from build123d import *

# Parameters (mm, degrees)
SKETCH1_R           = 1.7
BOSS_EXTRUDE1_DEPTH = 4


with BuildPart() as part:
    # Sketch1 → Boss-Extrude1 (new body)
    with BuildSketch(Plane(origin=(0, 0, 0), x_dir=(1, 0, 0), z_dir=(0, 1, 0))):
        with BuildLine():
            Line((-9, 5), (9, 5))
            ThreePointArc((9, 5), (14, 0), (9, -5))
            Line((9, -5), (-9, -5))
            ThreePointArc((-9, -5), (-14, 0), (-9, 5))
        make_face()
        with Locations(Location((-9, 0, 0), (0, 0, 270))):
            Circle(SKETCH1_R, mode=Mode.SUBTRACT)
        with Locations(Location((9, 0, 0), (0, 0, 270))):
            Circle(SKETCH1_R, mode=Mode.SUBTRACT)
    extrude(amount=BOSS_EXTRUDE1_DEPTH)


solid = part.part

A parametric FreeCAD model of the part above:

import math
import FreeCAD as App
import Part
import Sketcher
from FreeCAD import Vector
Q = App.Units.Quantity

doc = App.newDocument("Part")
body = doc.addObject("PartDesign::Body", "Body")

# Sketch on XZ plane
sketch1 = body.newObject("Sketcher::SketchObject", "Sketch")
sketch1.AttachmentSupport = (doc.getObject("XZ_Plane"), [""])
sketch1.MapMode = "FlatFace"
sketch1.addGeometry([
    Part.LineSegment(Vector(9, -5, 0), Vector(-9, -5, 0)),  # 0
    Part.ArcOfCircle(Part.Circle(Vector(-9, 0, 0), Vector(0, 0, 1), 5), math.radians(90), math.radians(270)),  # 1
    Part.LineSegment(Vector(-9, 5, 0), Vector(9, 5, 0)),  # 2
    Part.ArcOfCircle(Part.Circle(Vector(9, 0, 0), Vector(0, 0, 1), 5), math.radians(-90), math.radians(90)),  # 3
    Part.Circle(Vector(9, 0, 0), Vector(0, 0, 1), 1.7),  # 4
    Part.Circle(Vector(-9, 0, 0), Vector(0, 0, 1), 1.7),  # 5
], False)
sketch1.addConstraint([
    Sketcher.Constraint("Tangent", 0, 2, 1, 2),
    Sketcher.Constraint("Tangent", 1, 1, 2, 1),
    Sketcher.Constraint("Tangent", 2, 2, 3, 2),
    Sketcher.Constraint("Tangent", 3, 1, 0, 1),
    Sketcher.Constraint("Horizontal", 0),
    Sketcher.Constraint("Horizontal", 2),
    Sketcher.Constraint("Coincident", 4, 3, 3, 3),
    Sketcher.Constraint("Coincident", 5, 3, 1, 3),
    Sketcher.Constraint("Equal", 4, 5),
    Sketcher.Constraint("Symmetric", 1, 3, 3, 3, -1, 1),
    Sketcher.Constraint("Radius", 1, Q("5 mm")),
    Sketcher.Constraint("Diameter", 4, Q("3.4 mm")),
    Sketcher.Constraint("DistanceX", 0, 2, 0, 1, Q("18 mm")),
])
pad1 = body.newObject("PartDesign::Pad", "Pad")
pad1.Profile = sketch1
pad1.Length = 4
pad1.Reversed = True

doc.recompute()
